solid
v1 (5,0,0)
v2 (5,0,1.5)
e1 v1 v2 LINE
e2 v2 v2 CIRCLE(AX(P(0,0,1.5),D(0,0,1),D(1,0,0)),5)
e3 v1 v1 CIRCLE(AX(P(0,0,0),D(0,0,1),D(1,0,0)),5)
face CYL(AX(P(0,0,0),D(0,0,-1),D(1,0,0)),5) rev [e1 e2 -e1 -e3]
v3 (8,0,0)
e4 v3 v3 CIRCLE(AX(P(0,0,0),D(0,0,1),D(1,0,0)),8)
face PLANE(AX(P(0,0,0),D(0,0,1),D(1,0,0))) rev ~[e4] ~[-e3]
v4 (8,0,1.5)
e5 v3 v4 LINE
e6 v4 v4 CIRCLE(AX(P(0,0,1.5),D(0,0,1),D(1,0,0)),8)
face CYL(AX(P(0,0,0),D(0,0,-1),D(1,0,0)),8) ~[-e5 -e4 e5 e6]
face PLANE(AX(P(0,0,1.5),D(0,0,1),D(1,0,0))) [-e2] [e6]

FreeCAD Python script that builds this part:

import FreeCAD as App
import Part
import Sketcher

doc = App.newDocument("Part")
body = doc.addObject("PartDesign::Body", "Body")

# Sketch on XY plane
sketch1 = body.newObject("Sketcher::SketchObject", "Sketch")
sketch1.AttachmentSupport = (doc.getObject("XY_Plane"), [""])
sketch1.MapMode = "FlatFace"
sketch1.addGeometry([
    Part.Circle(App.Vector(0, 0, 0), App.Vector(0, 0, 1), 8),
    Part.Circle(App.Vector(0, 0, 0), App.Vector(0, 0, 1), 5),
], False)
sketch1.addConstraint([
    Sketcher.Constraint("Coincident", 0, 3, -1, 1),
    Sketcher.Constraint("Coincident", 1, 3, -1, 1),
    Sketcher.Constraint("Diameter", 1, 10.0),
    Sketcher.Constraint("Diameter", 0, 16.0),
])
pad1 = body.newObject("PartDesign::Pad", "Pad")
pad1.Profile = sketch1
pad1.Length = 1.5

doc.recompute()
